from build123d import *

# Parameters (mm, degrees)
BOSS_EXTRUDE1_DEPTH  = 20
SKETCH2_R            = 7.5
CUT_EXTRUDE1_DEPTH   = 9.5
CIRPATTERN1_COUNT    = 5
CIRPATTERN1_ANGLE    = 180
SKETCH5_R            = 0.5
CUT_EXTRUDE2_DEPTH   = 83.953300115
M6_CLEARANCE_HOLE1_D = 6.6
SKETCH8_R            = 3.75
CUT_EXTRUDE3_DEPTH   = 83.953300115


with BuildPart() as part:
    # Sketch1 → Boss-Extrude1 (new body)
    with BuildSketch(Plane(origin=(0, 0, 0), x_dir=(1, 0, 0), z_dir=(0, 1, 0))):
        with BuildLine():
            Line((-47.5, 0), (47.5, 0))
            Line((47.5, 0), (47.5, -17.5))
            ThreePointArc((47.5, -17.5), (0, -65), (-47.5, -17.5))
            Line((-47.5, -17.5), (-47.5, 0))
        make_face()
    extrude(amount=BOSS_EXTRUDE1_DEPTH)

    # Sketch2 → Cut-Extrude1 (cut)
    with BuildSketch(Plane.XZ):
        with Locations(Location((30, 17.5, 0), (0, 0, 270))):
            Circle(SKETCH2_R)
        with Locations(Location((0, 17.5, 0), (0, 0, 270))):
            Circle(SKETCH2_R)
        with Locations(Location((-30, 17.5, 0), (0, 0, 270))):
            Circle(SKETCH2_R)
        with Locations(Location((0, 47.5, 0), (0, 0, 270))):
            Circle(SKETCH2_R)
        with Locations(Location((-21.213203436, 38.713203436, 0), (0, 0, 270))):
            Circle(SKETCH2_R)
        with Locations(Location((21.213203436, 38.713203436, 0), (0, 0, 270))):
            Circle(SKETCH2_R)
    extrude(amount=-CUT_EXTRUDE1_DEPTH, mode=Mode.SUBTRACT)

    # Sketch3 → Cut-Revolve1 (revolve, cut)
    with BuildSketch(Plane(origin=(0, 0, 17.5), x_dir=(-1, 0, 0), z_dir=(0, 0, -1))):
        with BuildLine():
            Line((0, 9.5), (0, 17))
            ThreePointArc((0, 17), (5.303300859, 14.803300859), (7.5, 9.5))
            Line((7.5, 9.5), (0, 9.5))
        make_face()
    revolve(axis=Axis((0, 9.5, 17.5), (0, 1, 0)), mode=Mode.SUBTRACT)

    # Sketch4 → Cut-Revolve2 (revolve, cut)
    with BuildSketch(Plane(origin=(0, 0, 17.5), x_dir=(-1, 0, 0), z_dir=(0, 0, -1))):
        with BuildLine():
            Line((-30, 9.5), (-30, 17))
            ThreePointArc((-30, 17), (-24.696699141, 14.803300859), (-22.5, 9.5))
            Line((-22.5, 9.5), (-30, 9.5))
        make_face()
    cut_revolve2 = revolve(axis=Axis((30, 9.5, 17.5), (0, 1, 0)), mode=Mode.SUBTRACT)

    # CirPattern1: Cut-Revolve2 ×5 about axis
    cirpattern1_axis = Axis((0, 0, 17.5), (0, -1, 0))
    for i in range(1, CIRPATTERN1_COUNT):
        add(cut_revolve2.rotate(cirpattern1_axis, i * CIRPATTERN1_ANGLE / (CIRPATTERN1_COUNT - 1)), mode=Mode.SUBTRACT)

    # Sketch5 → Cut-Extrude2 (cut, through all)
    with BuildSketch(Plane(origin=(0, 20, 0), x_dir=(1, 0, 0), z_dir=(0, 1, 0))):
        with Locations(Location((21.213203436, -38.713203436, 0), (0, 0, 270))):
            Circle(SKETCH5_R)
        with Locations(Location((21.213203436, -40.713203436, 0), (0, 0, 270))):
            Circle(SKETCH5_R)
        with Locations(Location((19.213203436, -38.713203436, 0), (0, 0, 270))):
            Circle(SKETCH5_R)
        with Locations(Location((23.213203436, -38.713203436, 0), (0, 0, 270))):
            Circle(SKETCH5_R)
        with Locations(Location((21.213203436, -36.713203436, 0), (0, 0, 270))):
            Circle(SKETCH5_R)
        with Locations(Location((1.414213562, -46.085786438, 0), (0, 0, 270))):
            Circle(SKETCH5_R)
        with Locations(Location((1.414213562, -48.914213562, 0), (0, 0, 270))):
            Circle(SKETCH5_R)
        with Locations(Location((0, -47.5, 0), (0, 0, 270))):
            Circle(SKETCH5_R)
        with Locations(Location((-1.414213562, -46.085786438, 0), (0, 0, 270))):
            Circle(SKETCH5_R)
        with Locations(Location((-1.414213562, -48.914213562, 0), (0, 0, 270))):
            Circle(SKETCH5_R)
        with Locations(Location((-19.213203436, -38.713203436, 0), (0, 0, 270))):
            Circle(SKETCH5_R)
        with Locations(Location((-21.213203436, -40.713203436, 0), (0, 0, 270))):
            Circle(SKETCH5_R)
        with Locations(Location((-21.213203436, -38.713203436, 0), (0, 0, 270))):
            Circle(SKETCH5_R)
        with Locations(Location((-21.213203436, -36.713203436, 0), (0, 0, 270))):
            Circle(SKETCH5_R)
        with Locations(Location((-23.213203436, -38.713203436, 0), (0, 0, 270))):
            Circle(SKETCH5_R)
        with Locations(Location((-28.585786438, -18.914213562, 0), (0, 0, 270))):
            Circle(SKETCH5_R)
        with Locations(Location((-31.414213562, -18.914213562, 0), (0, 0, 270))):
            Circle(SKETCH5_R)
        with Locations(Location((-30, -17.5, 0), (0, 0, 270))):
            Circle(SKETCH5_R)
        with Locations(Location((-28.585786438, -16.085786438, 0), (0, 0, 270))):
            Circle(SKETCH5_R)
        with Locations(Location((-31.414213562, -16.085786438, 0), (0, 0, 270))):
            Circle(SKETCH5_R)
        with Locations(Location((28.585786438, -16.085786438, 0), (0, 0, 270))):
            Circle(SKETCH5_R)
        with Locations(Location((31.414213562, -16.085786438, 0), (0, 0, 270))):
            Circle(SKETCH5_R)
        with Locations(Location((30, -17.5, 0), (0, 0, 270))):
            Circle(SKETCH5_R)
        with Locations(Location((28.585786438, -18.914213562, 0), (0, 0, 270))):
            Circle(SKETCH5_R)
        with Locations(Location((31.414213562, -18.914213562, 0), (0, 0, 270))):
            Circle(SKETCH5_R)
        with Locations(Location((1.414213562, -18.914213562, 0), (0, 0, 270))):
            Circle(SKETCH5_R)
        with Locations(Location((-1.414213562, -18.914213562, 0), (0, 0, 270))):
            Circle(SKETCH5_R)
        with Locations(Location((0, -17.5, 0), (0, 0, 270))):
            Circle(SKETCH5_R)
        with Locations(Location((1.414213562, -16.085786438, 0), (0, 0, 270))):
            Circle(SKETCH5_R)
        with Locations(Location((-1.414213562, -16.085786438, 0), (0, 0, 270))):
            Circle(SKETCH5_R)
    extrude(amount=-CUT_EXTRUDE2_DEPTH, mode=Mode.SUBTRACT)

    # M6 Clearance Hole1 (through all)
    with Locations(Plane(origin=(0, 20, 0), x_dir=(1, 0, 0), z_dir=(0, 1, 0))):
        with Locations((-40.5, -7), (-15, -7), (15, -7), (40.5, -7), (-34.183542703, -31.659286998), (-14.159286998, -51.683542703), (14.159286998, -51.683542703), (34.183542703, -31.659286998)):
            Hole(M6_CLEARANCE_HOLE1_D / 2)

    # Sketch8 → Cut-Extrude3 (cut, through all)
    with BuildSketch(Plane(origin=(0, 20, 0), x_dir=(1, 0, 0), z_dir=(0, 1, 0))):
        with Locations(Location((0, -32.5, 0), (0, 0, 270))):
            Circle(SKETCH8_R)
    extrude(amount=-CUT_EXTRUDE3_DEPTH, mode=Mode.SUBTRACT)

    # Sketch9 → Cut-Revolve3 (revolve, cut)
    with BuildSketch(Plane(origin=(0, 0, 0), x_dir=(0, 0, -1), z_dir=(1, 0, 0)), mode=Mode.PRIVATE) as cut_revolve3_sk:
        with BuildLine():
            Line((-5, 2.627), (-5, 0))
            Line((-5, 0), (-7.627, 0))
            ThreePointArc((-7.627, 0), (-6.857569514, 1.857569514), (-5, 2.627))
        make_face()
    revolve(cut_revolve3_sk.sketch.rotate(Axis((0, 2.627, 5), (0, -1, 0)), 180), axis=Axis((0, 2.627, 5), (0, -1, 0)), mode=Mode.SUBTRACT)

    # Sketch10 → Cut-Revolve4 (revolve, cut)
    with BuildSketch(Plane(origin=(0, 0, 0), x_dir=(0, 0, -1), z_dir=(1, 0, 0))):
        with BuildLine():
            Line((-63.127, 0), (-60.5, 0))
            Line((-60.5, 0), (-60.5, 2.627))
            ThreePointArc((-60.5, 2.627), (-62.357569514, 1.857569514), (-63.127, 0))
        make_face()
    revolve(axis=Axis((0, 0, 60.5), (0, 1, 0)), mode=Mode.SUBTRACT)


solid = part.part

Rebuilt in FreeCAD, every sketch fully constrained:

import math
import FreeCAD as App
import Part
import Sketcher
Q = App.Units.Quantity

doc = App.newDocument("Part")
body = doc.addObject("PartDesign::Body", "Body")

# Sketch on XZ plane
sketch1 = body.newObject("Sketcher::SketchObject", "Sketch")
sketch1.AttachmentSupport = (doc.getObject("XZ_Plane"), [""])
sketch1.MapMode = "FlatFace"
sketch1.addGeometry(Part.LineSegment(App.Vector(48, 0, 0), App.Vector(-48, 0, 0)), False)
sketch1.addGeometry(Part.LineSegment(App.Vector(-48, 0, 0), App.Vector(-48, 18, 0)), False)
sketch1.addGeometry(Part.ArcOfCircle(Part.Circle(App.Vector(0, 18, 0), App.Vector(0, 0, 1), 48), math.radians(0), math.radians(180)), False)
sketch1.addGeometry(Part.LineSegment(App.Vector(48, 18, 0), App.Vector(48, 0, 0)), False)
sketch1.addConstraint(Sketcher.Constraint("Coincident", 0, 2, 1, 1))
sketch1.addConstraint(Sketcher.Constraint("Tangent", 1, 2, 2, 2))
sketch1.addConstraint(Sketcher.Constraint("Tangent", 2, 1, 3, 1))
sketch1.addConstraint(Sketcher.Constraint("Coincident", 3, 2, 0, 1))
sketch1.addConstraint(Sketcher.Constraint("Horizontal", 0))
sketch1.addConstraint(Sketcher.Constraint("Vertical", 1))
sketch1.addConstraint(Sketcher.Constraint("Vertical", 3))
sketch1.addConstraint(Sketcher.Constraint("Symmetric", 0, 2, 3, 2, -1, 1))
sketch1.addConstraint(Sketcher.Constraint("Radius", 2, Q("47.5 mm")))
sketch1.addConstraint(Sketcher.Constraint("DistanceY", 1, 1, 1, 2, Q("17.5 mm")))
pad1 = body.newObject("PartDesign::Pad", "Pad")
pad1.Profile = sketch1
pad1.Length = 20
pad1.Reversed = True

# Sketch on XZ plane
sketch2 = body.newObject("Sketcher::SketchObject", "Sketch001")
sketch2.AttachmentSupport = (doc.getObject("XZ_Plane"), [""])
sketch2.MapMode = "FlatFace"
sketch2.addGeometry(Part.Circle(App.Vector(30, 18, 0), App.Vector(0, 0, 1), 8), False)
sketch2.addGeometry(Part.Circle(App.Vector(0, 18, 0), App.Vector(0, 0, 1), 8), False)
sketch2.addGeometry(Part.Circle(App.Vector(-30, 18, 0), App.Vector(0, 0, 1), 8), False)
sketch2.addGeometry(Part.Circle(App.Vector(0, 48, 0), App.Vector(0, 0, 1), 8), False)
sketch2.addGeometry(Part.Circle(App.Vector(-21, 39, 0), App.Vector(0, 0, 1), 8), False)
sketch2.addGeometry(Part.Circle(App.Vector(21, 39, 0), App.Vector(0, 0, 1), 8), False)
sketch2.addConstraint(Sketcher.Constraint("Equal", 0, 1))
sketch2.addConstraint(Sketcher.Constraint("Equal", 1, 2))
sketch2.addConstraint(Sketcher.Constraint("Equal", 2, 3))
sketch2.addConstraint(Sketcher.Constraint("Equal", 3, 4))
sketch2.addConstraint(Sketcher.Constraint("Equal", 4, 5))
sketch2.addConstraint(Sketcher.Constraint("Symmetric", 0, 3, 2, 3, -2))
sketch2.addConstraint(Sketcher.Constraint("Symmetric", 4, 3, 5, 3, -2))
sketch2.addConstraint(Sketcher.Constraint("PointOnObject", 1, 3, -2))
sketch2.addConstraint(Sketcher.Constraint("PointOnObject", 3, 3, -2))
sketch2.addConstraint(Sketcher.Constraint("Horizontal", 0, 3, 1, 3))
sketch2.addConstraint(Sketcher.Constraint("Diameter", 0, Q("15 mm")))
sketch2.addConstraint(Sketcher.Constraint("DistanceX", -1, 1, 0, 3, Q("30 mm")))
sketch2.addConstraint(Sketcher.Constraint("DistanceY", 1, 3, 3, 3, Q("30 mm")))
sketch2.addConstraint(Sketcher.Constraint("DistanceY", -1, 1, 0, 3, Q("17.5 mm")))
sketch2.addConstraint(Sketcher.Constraint("DistanceX", 4, 3, -1, 1, Q("21.213203 mm")))
sketch2.addConstraint(Sketcher.Constraint("DistanceY", -1, 1, 4, 3, Q("38.713203 mm")))
pocket1 = body.newObject("PartDesign::Pocket", "Pocket")
pocket1.Profile = sketch2
pocket1.Length = 9.5

# Sketch on XY plane
sketch3 = body.newObject("Sketcher::SketchObject", "Sketch002")
sketch3.AttachmentSupport = (doc.getObject("XY_Plane"), [""])
sketch3.MapMode = "FlatFace"
sketch3.AttachmentOffset = App.Placement(App.Vector(0, 0, 17.5), App.Rotation())
sketch3.addGeometry(Part.LineSegment(App.Vector(0, 17, 0), App.Vector(0, 10, 0)), False)
sketch3.addGeometry(Part.LineSegment(App.Vector(0, 10, 0), App.Vector(-8, 10, 0)), False)
sketch3.addGeometry(Part.ArcOfCircle(Part.Circle(App.Vector(0, 10, 0), App.Vector(0, 0, 1), 8), math.radians(90), math.radians(180)), False)
sketch3.addConstraint(Sketcher.Constraint("Coincident", 0, 2, 1, 1))
sketch3.addConstraint(Sketcher.Constraint("Coincident", 1, 2, 2, 2))
sketch3.addConstraint(Sketcher.Constraint("Coincident", 2, 1, 0, 1))
sketch3.addConstraint(Sketcher.Constraint("Vertical", 0))
sketch3.addConstraint(Sketcher.Constraint("Horizontal", 1))
sketch3.addConstraint(Sketcher.Constraint("Coincident", 0, 2, 2, 3))
sketch3.addConstraint(Sketcher.Constraint("PointOnObject", 2, 3, -2))
sketch3.addConstraint(Sketcher.Constraint("Radius", 2, Q("7.5 mm")))
sketch3.addConstraint(Sketcher.Constraint("DistanceY", -1, 1, 2, 1, Q("17 mm")))
groove = body.newObject("PartDesign::Groove", "Groove")
groove.Profile = sketch3
groove.ReferenceAxis = (sketch3, ["V_Axis"])
groove.Angle = 360

# Sketch on XY plane
sketch4 = body.newObject("Sketcher::SketchObject", "Sketch003")
sketch4.AttachmentSupport = (doc.getObject("XY_Plane"), [""])
sketch4.MapMode = "FlatFace"
sketch4.AttachmentOffset = App.Placement(App.Vector(0, 0, 17.5), App.Rotation())
sketch4.addGeometry(Part.LineSegment(App.Vector(30, 17, 0), App.Vector(30, 10, 0)), False)
sketch4.addGeometry(Part.LineSegment(App.Vector(30, 10, 0), App.Vector(22, 10, 0)), False)
sketch4.addGeometry(Part.ArcOfCircle(Part.Circle(App.Vector(30, 10, 0), App.Vector(0, 0, 1), 8), math.radians(90), math.radians(180)), False)
sketch4.addGeometry(Part.LineSegment(App.Vector(30, 10, 0), App.Vector(30, 17, 0)), True)  # axis
sketch4.addConstraint(Sketcher.Constraint("Coincident", 0, 2, 1, 1))
sketch4.addConstraint(Sketcher.Constraint("Coincident", 1, 2, 2, 2))
sketch4.addConstraint(Sketcher.Constraint("Coincident", 2, 1, 0, 1))
sketch4.addConstraint(Sketcher.Constraint("Vertical", 0))
sketch4.addConstraint(Sketcher.Constraint("Horizontal", 1))
sketch4.addConstraint(Sketcher.Constraint("Vertical", 3))
sketch4.addConstraint(Sketcher.Constraint("Coincident", 0, 2, 2, 3))
sketch4.addConstraint(Sketcher.Constraint("Coincident", 3, 1, 2, 3))
sketch4.addConstraint(Sketcher.Constraint("Equal", 0, 3))
sketch4.addConstraint(Sketcher.Constraint("Radius", 2, Q("7.5 mm")))
sketch4.addConstraint(Sketcher.Constraint("DistanceX", -1, 1, 2, 3, Q("30 mm")))
sketch4.addConstraint(Sketcher.Constraint("DistanceY", -1, 1, 2, 1, Q("17 mm")))
groove2 = body.newObject("PartDesign::Groove", "Groove001")
groove2.Profile = sketch4
groove2.ReferenceAxis = (sketch4, ["Axis0"])
groove2.Angle = 360
doc.recompute()

datumline = body.newObject("PartDesign::Line", "DatumLine")
datumline.Placement = App.Placement(App.Vector(0, 0, 17.5), App.Rotation(App.Vector(0, 0, 1), App.Vector(0, -1, 0)))
polarpattern = body.newObject("PartDesign::PolarPattern", "PolarPattern")
polarpattern.Originals = [groove2]
polarpattern.Axis = (datumline, [""])
polarpattern.Angle = 180
polarpattern.Occurrences = 5
body.Tip = polarpattern

# Sketch on XZ plane
sketch5 = body.newObject("Sketcher::SketchObject", "Sketch004")
sketch5.AttachmentSupport = (doc.getObject("XZ_Plane"), [""])
sketch5.MapMode = "FlatFace"
sketch5.AttachmentOffset = App.Placement(App.Vector(0, 0, -20), App.Rotation())
sketch5.addGeometry(Part.Circle(App.Vector(21.2, 38.7, 0), App.Vector(0, 0, 1), 0.5), False)
sketch5.addGeometry(Part.Circle(App.Vector(21.2, 40.7, 0), App.Vector(0, 0, 1), 0.5), False)
sketch5.addGeometry(Part.Circle(App.Vector(19.2, 38.7, 0), App.Vector(0, 0, 1), 0.5), False)
sketch5.addGeometry(Part.Circle(App.Vector(23.2, 38.7, 0), App.Vector(0, 0, 1), 0.5), False)
sketch5.addGeometry(Part.Circle(App.Vector(21.2, 36.7, 0), App.Vector(0, 0, 1), 0.5), False)
sketch5.addGeometry(Part.Circle(App.Vector(1.4, 46.1, 0), App.Vector(0, 0, 1), 0.5), False)
sketch5.addGeometry(Part.Circle(App.Vector(1.4, 48.9, 0), App.Vector(0, 0, 1), 0.5), False)
sketch5.addGeometry(Part.Circle(App.Vector(0, 47.5, 0), App.Vector(0, 0, 1), 0.5), False)
sketch5.addGeometry(Part.Circle(App.Vector(-1.4, 46.1, 0), App.Vector(0, 0, 1), 0.5), False)
sketch5.addGeometry(Part.Circle(App.Vector(-1.4, 48.9, 0), App.Vector(0, 0, 1), 0.5), False)
sketch5.addGeometry(Part.Circle(App.Vector(-19.2, 38.7, 0), App.Vector(0, 0, 1), 0.5), False)
sketch5.addGeometry(Part.Circle(App.Vector(-21.2, 40.7, 0), App.Vector(0, 0, 1), 0.5), False)
sketch5.addGeometry(Part.Circle(App.Vector(-21.2, 38.7, 0), App.Vector(0, 0, 1), 0.5), False)
sketch5.addGeometry(Part.Circle(App.Vector(-21.2, 36.7, 0), App.Vector(0, 0, 1), 0.5), False)
sketch5.addGeometry(Part.Circle(App.Vector(-23.2, 38.7, 0), App.Vector(0, 0, 1), 0.5), False)
sketch5.addGeometry(Part.Circle(App.Vector(-28.6, 18.9, 0), App.Vector(0, 0, 1), 0.5), False)
sketch5.addGeometry(Part.Circle(App.Vector(-31.4, 18.9, 0), App.Vector(0, 0, 1), 0.5), False)
sketch5.addGeometry(Part.Circle(App.Vector(-30, 17.5, 0), App.Vector(0, 0, 1), 0.5), False)
sketch5.addGeometry(Part.Circle(App.Vector(-28.6, 16.1, 0), App.Vector(0, 0, 1), 0.5), False)
sketch5.addGeometry(Part.Circle(App.Vector(-31.4, 16.1, 0), App.Vector(0, 0, 1), 0.5), False)
sketch5.addGeometry(Part.Circle(App.Vector(28.6, 16.1, 0), App.Vector(0, 0, 1), 0.5), False)
sketch5.addGeometry(Part.Circle(App.Vector(31.4, 16.1, 0), App.Vector(0, 0, 1), 0.5), False)
sketch5.addGeometry(Part.Circle(App.Vector(30, 17.5, 0), App.Vector(0, 0, 1), 0.5), False)
sketch5.addGeometry(Part.Circle(App.Vector(28.6, 18.9, 0), App.Vector(0, 0, 1), 0.5), False)
sketch5.addGeometry(Part.Circle(App.Vector(31.4, 18.9, 0), App.Vector(0, 0, 1), 0.5), False)
sketch5.addGeometry(Part.Circle(App.Vector(1.4, 18.9, 0), App.Vector(0, 0, 1), 0.5), False)
sketch5.addGeometry(Part.Circle(App.Vector(-1.4, 18.9, 0), App.Vector(0, 0, 1), 0.5), False)
sketch5.addGeometry(Part.Circle(App.Vector(0, 17.5, 0), App.Vector(0, 0, 1), 0.5), False)
sketch5.addGeometry(Part.Circle(App.Vector(1.4, 16.1, 0), App.Vector(0, 0, 1), 0.5), False)
sketch5.addGeometry(Part.Circle(App.Vector(-1.4, 16.1, 0), App.Vector(0, 0, 1), 0.5), False)
sketch5.addConstraint(Sketcher.Constraint("Equal", 0, 1))
sketch5.addConstraint(Sketcher.Constraint("Equal", 1, 2))
sketch5.addConstraint(Sketcher.Constraint("Equal", 2, 3))
sketch5.addConstraint(Sketcher.Constraint("Equal", 3, 4))
sketch5.addConstraint(Sketcher.Constraint("Equal", 4, 5))
sketch5.addConstraint(Sketcher.Constraint("Equal", 5, 6))
sketch5.addConstraint(Sketcher.Constraint("Equal", 6, 7))
sketch5.addConstraint(Sketcher.Constraint("Equal", 7, 8))
sketch5.addConstraint(Sketcher.Constraint("Equal", 8, 9))
sketch5.addConstraint(Sketcher.Constraint("Equal", 9, 10))
sketch5.addConstraint(Sketcher.Constraint("Equal", 10, 11))
sketch5.addConstraint(Sketcher.Constraint("Equal", 11, 12))
sketch5.addConstraint(Sketcher.Constraint("Equal", 12, 13))
sketch5.addConstraint(Sketcher.Constraint("Equal", 13, 14))
sketch5.addConstraint(Sketcher.Constraint("Equal", 14, 15))
sketch5.addConstraint(Sketcher.Constraint("Equal", 15, 16))
sketch5.addConstraint(Sketcher.Constraint("Equal", 16, 17))
sketch5.addConstraint(Sketcher.Constraint("Equal", 17, 18))
sketch5.addConstraint(Sketcher.Constraint("Equal", 18, 19))
sketch5.addConstraint(Sketcher.Constraint("Equal", 19, 20))
sketch5.addConstraint(Sketcher.Constraint("Equal", 20, 21))
sketch5.addConstraint(Sketcher.Constraint("Equal", 21, 22))
sketch5.addConstraint(Sketcher.Constraint("Equal", 22, 23))
sketch5.addConstraint(Sketcher.Constraint("Equal", 23, 24))
sketch5.addConstraint(Sketcher.Constraint("Equal", 24, 25))
sketch5.addConstraint(Sketcher.Constraint("Equal", 25, 26))
sketch5.addConstraint(Sketcher.Constraint("Equal", 26, 27))
sketch5.addConstraint(Sketcher.Constraint("Equal", 27, 28))
sketch5.addConstraint(Sketcher.Constraint("Equal", 28, 29))
sketch5.addConstraint(Sketcher.Constraint("Symmetric", 5, 3, 8, 3, -2))
sketch5.addConstraint(Sketcher.Constraint("Symmetric", 6, 3, 9, 3, -2))
sketch5.addConstraint(Sketcher.Constraint("Symmetric", 2, 3, 10, 3, -2))
sketch5.addConstraint(Sketcher.Constraint("Symmetric", 1, 3, 11, 3, -2))
sketch5.addConstraint(Sketcher.Constraint("Symmetric", 0, 3, 12, 3, -2))
sketch5.addConstraint(Sketcher.Constraint("Symmetric", 4, 3, 13, 3, -2))
sketch5.addConstraint(Sketcher.Constraint("Symmetric", 3, 3, 14, 3, -2))
sketch5.addConstraint(Sketcher.Constraint("Symmetric", 18, 3, 20, 3, -2))
sketch5.addConstraint(Sketcher.Constraint("Symmetric", 19, 3, 21, 3, -2))
sketch5.addConstraint(Sketcher.Constraint("Symmetric", 17, 3, 22, 3, -2))
sketch5.addConstraint(Sketcher.Constraint("Symmetric", 15, 3, 23, 3, -2))
sketch5.addConstraint(Sketcher.Constraint("Symmetric", 16, 3, 24, 3, -2))
sketch5.addConstraint(Sketcher.Constraint("Symmetric", 25, 3, 26, 3, -2))
sketch5.addConstraint(Sketcher.Constraint("Symmetric", 28, 3, 29, 3, -2))
sketch5.addConstraint(Sketcher.Constraint("PointOnObject", 7, 3, -2))
sketch5.addConstraint(Sketcher.Constraint("PointOnObject", 27, 3, -2))
sketch5.addConstraint(Sketcher.Constraint("Horizontal", 0, 3, 2, 3))
sketch5.addConstraint(Sketcher.Constraint("Horizontal", 2, 3, 3, 3))
sketch5.addConstraint(Sketcher.Constraint("Horizontal", 15, 3, 16, 3))
sketch5.addConstraint(Sketcher.Constraint("Horizontal", 18, 3, 19, 3))
sketch5.addConstraint(Sketcher.Constraint("Horizontal", 24, 3, 25, 3))
sketch5.addConstraint(Sketcher.Constraint("Horizontal", 22, 3, 27, 3))
sketch5.addConstraint(Sketcher.Constraint("Horizontal", 21, 3, 28, 3))
sketch5.addConstraint(Sketcher.Constraint("Vertical", 0, 3, 1, 3))
sketch5.addConstraint(Sketcher.Constraint("Vertical", 1, 3, 4, 3))
sketch5.addConstraint(Sketcher.Constraint("Vertical", 5, 3, 6, 3))
sketch5.addConstraint(Sketcher.Constraint("Vertical", 15, 3, 18, 3))
sketch5.addConstraint(Sketcher.Constraint("Vertical", 16, 3, 19, 3))
sketch5.addConstraint(Sketcher.Constraint("Vertical", 6, 3, 25, 3))
sketch5.addConstraint(Sketcher.Constraint("Vertical", 25, 3, 28, 3))
sketch5.addConstraint(Sketcher.Constraint("Diameter", 0, Q("1 mm")))
sketch5.addConstraint(Sketcher.Constraint("DistanceX", 17, 3, -1, 1, Q("30 mm")))
sketch5.addConstraint(Sketcher.Constraint("DistanceY", 0, 3, 1, 3, Q("2 mm")))
sketch5.addConstraint(Sketcher.Constraint("DistanceX", 2, 3, 0, 3, Q("2 mm")))
sketch5.addConstraint(Sketcher.Constraint("DistanceX", 0, 3, 3, 3, Q("2 mm")))
sketch5.addConstraint(Sketcher.Constraint("DistanceY", 4, 3, 0, 3, Q("2 mm")))
sketch5.addConstraint(Sketcher.Constraint("DistanceY", -1, 1, 7, 3, Q("47.5 mm")))
sketch5.addConstraint(Sketcher.Constraint("DistanceY", -1, 1, 17, 3, Q("17.5 mm")))
sketch5.addConstraint(Sketcher.Constraint("DistanceX", 5, 3, 2, 3, Q("17.79899 mm")))
sketch5.addConstraint(Sketcher.Constraint("DistanceY", 2, 3, 6, 3, Q("10.20101 mm")))
sketch5.addConstraint(Sketcher.Constraint("DistanceY", 15, 3, 13, 3, Q("17.79899 mm")))
sketch5.addConstraint(Sketcher.Constraint("DistanceX", 16, 3, 13, 3, Q("10.20101 mm")))
sketch5.addConstraint(Sketcher.Constraint("DistanceX", -1, 1, 0, 3, Q("21.213203 mm")))
sketch5.addConstraint(Sketcher.Constraint("DistanceY", -1, 1, 0, 3, Q("38.713203 mm")))
sketch5.addConstraint(Sketcher.Constraint("DistanceY", -1, 1, 5, 3, Q("46.085786 mm")))
sketch5.addConstraint(Sketcher.Constraint("DistanceX", 15, 3, -1, 1, Q("28.585786 mm")))
sketch5.addConstraint(Sketcher.Constraint("DistanceY", -1, 1, 18, 3, Q("16.085786 mm")))
pocket2 = body.newObject("PartDesign::Pocket", "Pocket001")
pocket2.Profile = sketch5
pocket2.Type = "ThroughAll"
pocket2.Reversed = True

# Sketch on XZ plane
sketch6 = body.newObject("Sketcher::SketchObject", "Sketch005")
sketch6.AttachmentSupport = (doc.getObject("XZ_Plane"), [""])
sketch6.MapMode = "FlatFace"
sketch6.AttachmentOffset = App.Placement(App.Vector(0, 0, -20), App.Rotation())
sketch6.addGeometry(Part.Circle(App.Vector(-40.5, 7, 0), App.Vector(0, 0, 1), 3.3), False)
sketch6.addGeometry(Part.Circle(App.Vector(-15, 7, 0), App.Vector(0, 0, 1), 3.3), False)
sketch6.addGeometry(Part.Circle(App.Vector(15, 7, 0), App.Vector(0, 0, 1), 3.3), False)
sketch6.addGeometry(Part.Circle(App.Vector(40.5, 7, 0), App.Vector(0, 0, 1), 3.3), False)
sketch6.addGeometry(Part.Circle(App.Vector(-34.2, 31.7, 0), App.Vector(0, 0, 1), 3.3), False)
sketch6.addGeometry(Part.Circle(App.Vector(-14.2, 51.7, 0), App.Vector(0, 0, 1), 3.3), False)
sketch6.addGeometry(Part.Circle(App.Vector(14.2, 51.7, 0), App.Vector(0, 0, 1), 3.3), False)
sketch6.addGeometry(Part.Circle(App.Vector(34.2, 31.7, 0), App.Vector(0, 0, 1), 3.3), False)
sketch6.addConstraint(Sketcher.Constraint("Equal", 0, 1))
sketch6.addConstraint(Sketcher.Constraint("Equal", 1, 2))
sketch6.addConstraint(Sketcher.Constraint("Equal", 2, 3))
sketch6.addConstraint(Sketcher.Constraint("Equal", 3, 4))
sketch6.addConstraint(Sketcher.Constraint("Equal", 4, 5))
sketch6.addConstraint(Sketcher.Constraint("Equal", 5, 6))
sketch6.addConstraint(Sketcher.Constraint("Equal", 6, 7))
sketch6.addConstraint(Sketcher.Constraint("Symmetric", 1, 3, 2, 3, -2))
sketch6.addConstraint(Sketcher.Constraint("Symmetric", 0, 3, 3, 3, -2))
sketch6.addConstraint(Sketcher.Constraint("Symmetric", 5, 3, 6, 3, -2))
sketch6.addConstraint(Sketcher.Constraint("Symmetric", 4, 3, 7, 3, -2))
sketch6.addConstraint(Sketcher.Constraint("Horizontal", 0, 3, 1, 3))
sketch6.addConstraint(Sketcher.Constraint("Diameter", 0, Q("6.6 mm")))
sketch6.addConstraint(Sketcher.Constraint("DistanceY", -1, 1, 0, 3, Q("7 mm")))
sketch6.addConstraint(Sketcher.Constraint("DistanceX", 1, 3, -1, 1, Q("15 mm")))
sketch6.addConstraint(Sketcher.Constraint("DistanceX", 0, 3, 3, 3, Q("81 mm")))
sketch6.addConstraint(Sketcher.Constraint("DistanceX", 4, 3, 6, 3, Q("48.34283 mm")))
sketch6.addConstraint(Sketcher.Constraint("DistanceX", 4, 3, -1, 1, Q("34.183543 mm")))
sketch6.addConstraint(Sketcher.Constraint("DistanceY", -1, 1, 4, 3, Q("31.659287 mm")))
sketch6.addConstraint(Sketcher.Constraint("DistanceY", -1, 1, 5, 3, Q("51.683543 mm")))
doc.recompute()
hole = body.newObject("PartDesign::Hole", "Hole")
hole.Profile = sketch6
hole.ThreadType = "None"
hole.Diameter = 6.6
hole.DepthType = "ThroughAll"
hole.Reversed = True

# Sketch on XZ plane
sketch7 = body.newObject("Sketcher::SketchObject", "Sketch006")
sketch7.AttachmentSupport = (doc.getObject("XZ_Plane"), [""])
sketch7.MapMode = "FlatFace"
sketch7.AttachmentOffset = App.Placement(App.Vector(0, 0, -20), App.Rotation())
sketch7.addGeometry(Part.Circle(App.Vector(0, 32.5, 0), App.Vector(0, 0, 1), 3.8), False)
sketch7.addConstraint(Sketcher.Constraint("PointOnObject", 0, 3, -2))
sketch7.addConstraint(Sketcher.Constraint("Diameter", 0, Q("7.5 mm")))
sketch7.addConstraint(Sketcher.Constraint("DistanceY", -1, 1, 0, 3, Q("32.5 mm")))
pocket3 = body.newObject("PartDesign::Pocket", "Pocket002")
pocket3.Profile = sketch7
pocket3.Type = "ThroughAll"
pocket3.Reversed = True

# Sketch on YZ plane
sketch8 = body.newObject("Sketcher::SketchObject", "Sketch007")
sketch8.AttachmentSupport = (doc.getObject("YZ_Plane"), [""])
sketch8.MapMode = "FlatFace"
sketch8.addGeometry(Part.LineSegment(App.Vector(0, 5, 0), App.Vector(2.6, 5, 0)), False)
sketch8.addGeometry(Part.ArcOfCircle(Part.Circle(App.Vector(0, 5, 0), App.Vector(0, 0, 1), 2.6), math.radians(0), math.radians(90)), False)
sketch8.addGeometry(Part.LineSegment(App.Vector(0, 7.6, 0), App.Vector(0, 5, 0)), False)
sketch8.addGeometry(Part.LineSegment(App.Vector(2.6, 5, 0), App.Vector(0, 5, 0)), True)  # axis
sketch8.addConstraint(Sketcher.Constraint("Coincident", 0, 2, 1, 1))
sketch8.addConstraint(Sketcher.Constraint("Coincident", 1, 2, 2, 1))
sketch8.addConstraint(Sketcher.Constraint("Coincident", 2, 2, 0, 1))
sketch8.addConstraint(Sketcher.Constraint("Horizontal", 0))
sketch8.addConstraint(Sketcher.Constraint("Vertical", 2))
sketch8.addConstraint(Sketcher.Constraint("Horizontal", 3))
sketch8.addConstraint(Sketcher.Constraint("Coincident", 2, 2, 1, 3))
sketch8.addConstraint(Sketcher.Constraint("Coincident", 3, 1, 0, 2))
sketch8.addConstraint(Sketcher.Constraint("PointOnObject", 1, 3, -2))
sketch8.addConstraint(Sketcher.Constraint("PointOnObject", 3, 2, -2))
sketch8.addConstraint(Sketcher.Constraint("DistanceY", -1, 1, 1, 3, Q("5 mm")))
sketch8.addConstraint(Sketcher.Constraint("Radius", 1, Q("2.627 mm")))
groove3 = body.newObject("PartDesign::Groove", "Groove002")
groove3.Profile = sketch8
groove3.ReferenceAxis = (sketch8, ["Axis0"])
groove3.Angle = 360

# Sketch on YZ plane
sketch9 = body.newObject("Sketcher::SketchObject", "Sketch008")
sketch9.AttachmentSupport = (doc.getObject("YZ_Plane"), [""])
sketch9.MapMode = "FlatFace"
sketch9.addGeometry(Part.LineSegment(App.Vector(0, 63.1, 0), App.Vector(0, 60.5, 0)), False)
sketch9.addGeometry(Part.LineSegment(App.Vector(0, 60.5, 0), App.Vector(2.6, 60.5, 0)), False)
sketch9.addGeometry(Part.ArcOfCircle(Part.Circle(App.Vector(0, 60.5, 0), App.Vector(0, 0, 1), 2.6), math.radians(0), math.radians(90)), False)
sketch9.addGeometry(Part.LineSegment(App.Vector(0, 60.5, 0), App.Vector(2.6, 60.5, 0)), True)  # axis
sketch9.addConstraint(Sketcher.Constraint("Coincident", 0, 2, 1, 1))
sketch9.addConstraint(Sketcher.Constraint("Coincident", 1, 2, 2, 1))
sketch9.addConstraint(Sketcher.Constraint("Coincident", 2, 2, 0, 1))
sketch9.addConstraint(Sketcher.Constraint("Vertical", 0))
sketch9.addConstraint(Sketcher.Constraint("Horizontal", 1))
sketch9.addConstraint(Sketcher.Constraint("Horizontal", 3))
sketch9.addConstraint(Sketcher.Constraint("Coincident", 0, 2, 2, 3))
sketch9.addConstraint(Sketcher.Constraint("Coincident", 3, 1, 2, 3))
sketch9.addConstraint(Sketcher.Constraint("PointOnObject", 2, 3, -2))
sketch9.addConstraint(Sketcher.Constraint("Equal", 1, 3))
sketch9.addConstraint(Sketcher.Constraint("Radius", 2, Q("2.627 mm")))
sketch9.addConstraint(Sketcher.Constraint("DistanceY", -1, 1, 2, 3, Q("60.5 mm")))
groove4 = body.newObject("PartDesign::Groove", "Groove003")
groove4.Profile = sketch9
groove4.ReferenceAxis = (sketch9, ["Axis0"])
groove4.Angle = 360

doc.recompute()
